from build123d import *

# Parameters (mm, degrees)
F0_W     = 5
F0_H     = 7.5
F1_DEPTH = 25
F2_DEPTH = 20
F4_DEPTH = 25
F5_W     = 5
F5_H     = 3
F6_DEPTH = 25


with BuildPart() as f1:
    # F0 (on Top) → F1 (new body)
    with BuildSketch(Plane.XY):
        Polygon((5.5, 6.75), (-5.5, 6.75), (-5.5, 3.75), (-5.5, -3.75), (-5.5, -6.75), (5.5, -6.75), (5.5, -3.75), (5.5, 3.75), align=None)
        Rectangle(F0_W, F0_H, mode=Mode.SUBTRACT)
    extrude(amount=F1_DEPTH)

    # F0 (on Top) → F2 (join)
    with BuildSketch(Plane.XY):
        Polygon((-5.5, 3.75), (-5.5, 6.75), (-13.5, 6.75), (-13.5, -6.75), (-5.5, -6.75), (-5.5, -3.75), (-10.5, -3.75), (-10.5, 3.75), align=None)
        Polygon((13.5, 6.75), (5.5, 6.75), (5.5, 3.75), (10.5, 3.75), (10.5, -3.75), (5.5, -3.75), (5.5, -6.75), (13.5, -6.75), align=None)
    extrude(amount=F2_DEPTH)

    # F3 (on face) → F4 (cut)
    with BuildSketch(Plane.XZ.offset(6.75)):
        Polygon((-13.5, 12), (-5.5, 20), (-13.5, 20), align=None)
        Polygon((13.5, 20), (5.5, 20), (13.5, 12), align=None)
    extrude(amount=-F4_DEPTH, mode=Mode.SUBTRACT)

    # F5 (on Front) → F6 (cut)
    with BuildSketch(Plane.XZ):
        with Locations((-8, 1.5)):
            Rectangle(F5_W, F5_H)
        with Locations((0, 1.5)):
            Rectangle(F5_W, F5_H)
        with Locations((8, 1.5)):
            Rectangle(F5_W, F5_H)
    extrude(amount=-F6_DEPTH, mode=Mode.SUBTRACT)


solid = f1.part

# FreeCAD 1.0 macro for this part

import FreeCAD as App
import Part
import Sketcher

V = App.Vector

doc = App.newDocument("Part")
body = doc.addObject("PartDesign::Body", "Body")

# Sketch on XY plane
sketch1 = doc.addObject("Sketcher::SketchObject", "Sketch")
body.addObject(sketch1)
sketch1.AttachmentSupport = (doc.XY_Plane, [""])
sketch1.MapMode = "FlatFace"
sketch1.addGeometry([
    Part.LineSegment(V(6, 7, 0), V(-6, 7, 0)),  # 0
    Part.LineSegment(V(-6, 7, 0), V(-6, -7, 0)),  # 1
    Part.LineSegment(V(-6, -7, 0), V(6, -7, 0)),  # 2
    Part.LineSegment(V(6, -7, 0), V(6, 7, 0)),  # 3
    Part.LineSegment(V(2, -4, 0), V(-2, -4, 0)),  # 4
    Part.LineSegment(V(-2, -4, 0), V(-2, 4, 0)),  # 5
    Part.LineSegment(V(-2, 4, 0), V(2, 4, 0)),  # 6
    Part.LineSegment(V(2, 4, 0), V(2, -4, 0)),  # 7
], False)
sketch1.addConstraint([
    Sketcher.Constraint("Coincident", 0, 2, 1, 1),
    Sketcher.Constraint("Coincident", 1, 2, 2, 1),
    Sketcher.Constraint("Coincident", 2, 2, 3, 1),
    Sketcher.Constraint("Coincident", 3, 2, 0, 1),
    Sketcher.Constraint("Coincident", 4, 2, 5, 1),
    Sketcher.Constraint("Coincident", 5, 2, 6, 1),
    Sketcher.Constraint("Coincident", 6, 2, 7, 1),
    Sketcher.Constraint("Coincident", 7, 2, 4, 1),
    Sketcher.Constraint("Horizontal", 0),
    Sketcher.Constraint("Vertical", 1),
    Sketcher.Constraint("Horizontal", 2),
    Sketcher.Constraint("Vertical", 3),
    Sketcher.Constraint("Horizontal", 4),
    Sketcher.Constraint("Vertical", 5),
    Sketcher.Constraint("Horizontal", 6),
    Sketcher.Constraint("Vertical", 7),
    Sketcher.Constraint("Symmetric", 0, 2, 2, 2, -1, 1),
    Sketcher.Constraint("Symmetric", 4, 2, 6, 2, -1, 1),
    Sketcher.Constraint("DistanceX", 0, 2, 0, 1, 11.0),
    Sketcher.Constraint("DistanceX", 4, 2, 4, 1, 5.0),
    Sketcher.Constraint("DistanceY", 1, 2, 1, 1, 13.5),
    Sketcher.Constraint("DistanceY", 5, 1, 5, 2, 7.5),
])
pad1 = doc.addObject("PartDesign::Pad", "Pad")
body.addObject(pad1)
pad1.Profile = sketch1
pad1.Length = 25

# Sketch on XY plane
sketch2 = doc.addObject("Sketcher::SketchObject", "Sketch001")
body.addObject(sketch2)
sketch2.AttachmentSupport = (doc.XY_Plane, [""])
sketch2.MapMode = "FlatFace"
sketch2.addGeometry([
    Part.LineSegment(V(-5.5, 3.8, 0), V(-5.5, 6.8, 0)),  # 0
    Part.LineSegment(V(-5.5, 6.8, 0), V(-13.5, 6.8, 0)),  # 1
    Part.LineSegment(V(-13.5, 6.8, 0), V(-13.5, -6.8, 0)),  # 2
    Part.LineSegment(V(-13.5, -6.8, 0), V(-5.5, -6.8, 0)),  # 3
    Part.LineSegment(V(-5.5, -6.8, 0), V(-5.5, -3.8, 0)),  # 4
    Part.LineSegment(V(-5.5, -3.8, 0), V(-10.5, -3.8, 0)),  # 5
    Part.LineSegment(V(-10.5, -3.8, 0), V(-10.5, 3.8, 0)),  # 6
    Part.LineSegment(V(-10.5, 3.8, 0), V(-5.5, 3.8, 0)),  # 7
    Part.LineSegment(V(13.5, 6.8, 0), V(5.5, 6.8, 0)),  # 8
    Part.LineSegment(V(5.5, 6.8, 0), V(5.5, 3.8, 0)),  # 9
    Part.LineSegment(V(5.5, 3.8, 0), V(10.5, 3.8, 0)),  # 10
    Part.LineSegment(V(10.5, 3.8, 0), V(10.5, -3.8, 0)),  # 11
    Part.LineSegment(V(10.5, -3.8, 0), V(5.5, -3.8, 0)),  # 12
    Part.LineSegment(V(5.5, -3.8, 0), V(5.5, -6.8, 0)),  # 13
    Part.LineSegment(V(5.5, -6.8, 0), V(13.5, -6.8, 0)),  # 14
    Part.LineSegment(V(13.5, -6.8, 0), V(13.5, 6.8, 0)),  # 15
], False)
sketch2.addConstraint([
    Sketcher.Constraint("Coincident", 0, 2, 1, 1),
    Sketcher.Constraint("Coincident", 1, 2, 2, 1),
    Sketcher.Constraint("Coincident", 2, 2, 3, 1),
    Sketcher.Constraint("Coincident", 3, 2, 4, 1),
    Sketcher.Constraint("Coincident", 4, 2, 5, 1),
    Sketcher.Constraint("Coincident", 5, 2, 6, 1),
    Sketcher.Constraint("Coincident", 6, 2, 7, 1),
    Sketcher.Constraint("Coincident", 7, 2, 0, 1),
    Sketcher.Constraint("Coincident", 8, 2, 9, 1),
    Sketcher.Constraint("Coincident", 9, 2, 10, 1),
    Sketcher.Constraint("Coincident", 10, 2, 11, 1),
    Sketcher.Constraint("Coincident", 11, 2, 12, 1),
    Sketcher.Constraint("Coincident", 12, 2, 13, 1),
    Sketcher.Constraint("Coincident", 13, 2, 14, 1),
    Sketcher.Constraint("Coincident", 14, 2, 15, 1),
    Sketcher.Constraint("Coincident", 15, 2, 8, 1),
    Sketcher.Constraint("Vertical", 0),
    Sketcher.Constraint("Horizontal", 1),
    Sketcher.Constraint("Vertical", 2),
    Sketcher.Constraint("Horizontal", 3),
    Sketcher.Constraint("Vertical", 4),
    Sketcher.Constraint("Horizontal", 5),
    Sketcher.Constraint("Vertical", 6),
    Sketcher.Constraint("Horizontal", 7),
    Sketcher.Constraint("Horizontal", 8),
    Sketcher.Constraint("Vertical", 9),
    Sketcher.Constraint("Horizontal", 10),
    Sketcher.Constraint("Vertical", 11),
    Sketcher.Constraint("Horizontal", 12),
    Sketcher.Constraint("Vertical", 13),
    Sketcher.Constraint("Horizontal", 14),
    Sketcher.Constraint("Vertical", 15),
    Sketcher.Constraint("Symmetric", 3, 2, 8, 2, -1, 1),
    Sketcher.Constraint("Symmetric", 5, 2, 10, 2, -1, 1),
    Sketcher.Constraint("Symmetric", 7, 2, 12, 2, -1, 1),
    Sketcher.Constraint("Symmetric", 1, 2, 14, 2, -1, 1),
    Sketcher.Constraint("Symmetric", 0, 2, 8, 2, -2),
    Sketcher.Constraint("Horizontal", 7, 2, 9, 2),
    Sketcher.Constraint("DistanceX", 1, 2, 1, 1, 8.0),
    Sketcher.Constraint("DistanceX", 5, 2, 5, 1, 5.0),
    Sketcher.Constraint("DistanceY", 0, 1, 0, 2, 3.0),
    Sketcher.Constraint("DistanceY", 2, 2, 2, 1, 13.5),
    Sketcher.Constraint("DistanceX", 0, 2, 8, 2, 11.0),
])
pad2 = doc.addObject("PartDesign::Pad", "Pad001")
body.addObject(pad2)
pad2.Profile = sketch2
pad2.Length = 20

# Sketch on XZ plane
sketch3 = doc.addObject("Sketcher::SketchObject", "Sketch002")
body.addObject(sketch3)
sketch3.AttachmentSupport = (doc.XZ_Plane, [""])
sketch3.MapMode = "FlatFace"
sketch3.AttachmentOffset = App.Placement(V(0, 0, 6.75), App.Rotation())
sketch3.addGeometry([
    Part.LineSegment(V(-14, 12, 0), V(-6, 20, 0)),  # 0
    Part.LineSegment(V(-6, 20, 0), V(-14, 20, 0)),  # 1
    Part.LineSegment(V(-14, 20, 0), V(-14, 12, 0)),  # 2
    Part.LineSegment(V(14, 20, 0), V(6, 20, 0)),  # 3
    Part.LineSegment(V(6, 20, 0), V(14, 12, 0)),  # 4
    Part.LineSegment(V(14, 12, 0), V(14, 20, 0)),  # 5
], False)
sketch3.addConstraint([
    Sketcher.Constraint("Coincident", 0, 2, 1, 1),
    Sketcher.Constraint("Coincident", 1, 2, 2, 1),
    Sketcher.Constraint("Coincident", 2, 2, 0, 1),
    Sketcher.Constraint("Coincident", 3, 2, 4, 1),
    Sketcher.Constraint("Coincident", 4, 2, 5, 1),
    Sketcher.Constraint("Coincident", 5, 2, 3, 1),
    Sketcher.Constraint("Horizontal", 1),
    Sketcher.Constraint("Vertical", 2),
    Sketcher.Constraint("Horizontal", 3),
    Sketcher.Constraint("Vertical", 5),
    Sketcher.Constraint("Symmetric", 0, 2, 3, 2, -2),
    Sketcher.Constraint("Symmetric", 2, 2, 4, 2, -2),
    Sketcher.Constraint("Perpendicular", 0, 4),
    Sketcher.Constraint("DistanceX", 1, 2, 1, 1, 8.0),
    Sketcher.Constraint("DistanceY", -1, 1, 0, 2, 20.0),
    Sketcher.Constraint("DistanceX", 0, 2, 3, 2, 11.0),
])
pocket1 = doc.addObject("PartDesign::Pocket", "Pocket")
body.addObject(pocket1)
pocket1.Profile = sketch3
pocket1.Length = 25

# Sketch on XZ plane
sketch4 = doc.addObject("Sketcher::SketchObject", "Sketch003")
body.addObject(sketch4)
sketch4.AttachmentSupport = (doc.XZ_Plane, [""])
sketch4.MapMode = "FlatFace"
sketch4.addGeometry([
    Part.LineSegment(V(-10.5, 3, 0), V(-10.5, 0, 0)),  # 0
    Part.LineSegment(V(-10.5, 0, 0), V(-5.5, 0, 0)),  # 1
    Part.LineSegment(V(-5.5, 0, 0), V(-5.5, 3, 0)),  # 2
    Part.LineSegment(V(-5.5, 3, 0), V(-10.5, 3, 0)),  # 3
    Part.LineSegment(V(-2.5, 3, 0), V(-2.5, 0, 0)),  # 4
    Part.LineSegment(V(-2.5, 0, 0), V(2.5, 0, 0)),  # 5
    Part.LineSegment(V(2.5, 0, 0), V(2.5, 3, 0)),  # 6
    Part.LineSegment(V(2.5, 3, 0), V(-2.5, 3, 0)),  # 7
    Part.LineSegment(V(5.5, 3, 0), V(5.5, 0, 0)),  # 8
    Part.LineSegment(V(5.5, 0, 0), V(10.5, 0, 0)),  # 9
    Part.LineSegment(V(10.5, 0, 0), V(10.5, 3, 0)),  # 10
    Part.LineSegment(V(10.5, 3, 0), V(5.5, 3, 0)),  # 11
], False)
sketch4.addConstraint([
    Sketcher.Constraint("Coincident", 0, 2, 1, 1),
    Sketcher.Constraint("Coincident", 1, 2, 2, 1),
    Sketcher.Constraint("Coincident", 2, 2, 3, 1),
    Sketcher.Constraint("Coincident", 3, 2, 0, 1),
    Sketcher.Constraint("Coincident", 4, 2, 5, 1),
    Sketcher.Constraint("Coincident", 5, 2, 6, 1),
    Sketcher.Constraint("Coincident", 6, 2, 7, 1),
    Sketcher.Constraint("Coincident", 7, 2, 4, 1),
    Sketcher.Constraint("Coincident", 8, 2, 9, 1),
    Sketcher.Constraint("Coincident", 9, 2, 10, 1),
    Sketcher.Constraint("Coincident", 10, 2, 11, 1),
    Sketcher.Constraint("Coincident", 11, 2, 8, 1),
    Sketcher.Constraint("Vertical", 0),
    Sketcher.Constraint("Horizontal", 1),
    Sketcher.Constraint("Vertical", 2),
    Sketcher.Constraint("Horizontal", 3),
    Sketcher.Constraint("Vertical", 4),
    Sketcher.Constraint("Horizontal", 5),
    Sketcher.Constraint("Vertical", 6),
    Sketcher.Constraint("Horizontal", 7),
    Sketcher.Constraint("Vertical", 8),
    Sketcher.Constraint("Horizontal", 9),
    Sketcher.Constraint("Vertical", 10),
    Sketcher.Constraint("Horizontal", 11),
    Sketcher.Constraint("Symmetric", 4, 2, 5, 2, -1, 1),
    Sketcher.Constraint("Symmetric", 1, 2, 8, 2, -1, 1),
    Sketcher.Constraint("Symmetric", 0, 2, 9, 2, -2),
    Sketcher.Constraint("Horizontal", 3, 2, 6, 2),
    Sketcher.Constraint("Horizontal", 7, 2, 10, 2),
    Sketcher.Constraint("Equal", 3, 5),
    Sketcher.Constraint("DistanceX", 1, 1, 1, 2, 5.0),
    Sketcher.Constraint("DistanceY", 0, 2, 0, 1, 3.0),
    Sketcher.Constraint("DistanceX", 1, 2, 4, 2, 3.0),
])
pocket2 = doc.addObject("PartDesign::Pocket", "Pocket001")
body.addObject(pocket2)
pocket2.Profile = sketch4
pocket2.Length = 25

doc.recompute()
